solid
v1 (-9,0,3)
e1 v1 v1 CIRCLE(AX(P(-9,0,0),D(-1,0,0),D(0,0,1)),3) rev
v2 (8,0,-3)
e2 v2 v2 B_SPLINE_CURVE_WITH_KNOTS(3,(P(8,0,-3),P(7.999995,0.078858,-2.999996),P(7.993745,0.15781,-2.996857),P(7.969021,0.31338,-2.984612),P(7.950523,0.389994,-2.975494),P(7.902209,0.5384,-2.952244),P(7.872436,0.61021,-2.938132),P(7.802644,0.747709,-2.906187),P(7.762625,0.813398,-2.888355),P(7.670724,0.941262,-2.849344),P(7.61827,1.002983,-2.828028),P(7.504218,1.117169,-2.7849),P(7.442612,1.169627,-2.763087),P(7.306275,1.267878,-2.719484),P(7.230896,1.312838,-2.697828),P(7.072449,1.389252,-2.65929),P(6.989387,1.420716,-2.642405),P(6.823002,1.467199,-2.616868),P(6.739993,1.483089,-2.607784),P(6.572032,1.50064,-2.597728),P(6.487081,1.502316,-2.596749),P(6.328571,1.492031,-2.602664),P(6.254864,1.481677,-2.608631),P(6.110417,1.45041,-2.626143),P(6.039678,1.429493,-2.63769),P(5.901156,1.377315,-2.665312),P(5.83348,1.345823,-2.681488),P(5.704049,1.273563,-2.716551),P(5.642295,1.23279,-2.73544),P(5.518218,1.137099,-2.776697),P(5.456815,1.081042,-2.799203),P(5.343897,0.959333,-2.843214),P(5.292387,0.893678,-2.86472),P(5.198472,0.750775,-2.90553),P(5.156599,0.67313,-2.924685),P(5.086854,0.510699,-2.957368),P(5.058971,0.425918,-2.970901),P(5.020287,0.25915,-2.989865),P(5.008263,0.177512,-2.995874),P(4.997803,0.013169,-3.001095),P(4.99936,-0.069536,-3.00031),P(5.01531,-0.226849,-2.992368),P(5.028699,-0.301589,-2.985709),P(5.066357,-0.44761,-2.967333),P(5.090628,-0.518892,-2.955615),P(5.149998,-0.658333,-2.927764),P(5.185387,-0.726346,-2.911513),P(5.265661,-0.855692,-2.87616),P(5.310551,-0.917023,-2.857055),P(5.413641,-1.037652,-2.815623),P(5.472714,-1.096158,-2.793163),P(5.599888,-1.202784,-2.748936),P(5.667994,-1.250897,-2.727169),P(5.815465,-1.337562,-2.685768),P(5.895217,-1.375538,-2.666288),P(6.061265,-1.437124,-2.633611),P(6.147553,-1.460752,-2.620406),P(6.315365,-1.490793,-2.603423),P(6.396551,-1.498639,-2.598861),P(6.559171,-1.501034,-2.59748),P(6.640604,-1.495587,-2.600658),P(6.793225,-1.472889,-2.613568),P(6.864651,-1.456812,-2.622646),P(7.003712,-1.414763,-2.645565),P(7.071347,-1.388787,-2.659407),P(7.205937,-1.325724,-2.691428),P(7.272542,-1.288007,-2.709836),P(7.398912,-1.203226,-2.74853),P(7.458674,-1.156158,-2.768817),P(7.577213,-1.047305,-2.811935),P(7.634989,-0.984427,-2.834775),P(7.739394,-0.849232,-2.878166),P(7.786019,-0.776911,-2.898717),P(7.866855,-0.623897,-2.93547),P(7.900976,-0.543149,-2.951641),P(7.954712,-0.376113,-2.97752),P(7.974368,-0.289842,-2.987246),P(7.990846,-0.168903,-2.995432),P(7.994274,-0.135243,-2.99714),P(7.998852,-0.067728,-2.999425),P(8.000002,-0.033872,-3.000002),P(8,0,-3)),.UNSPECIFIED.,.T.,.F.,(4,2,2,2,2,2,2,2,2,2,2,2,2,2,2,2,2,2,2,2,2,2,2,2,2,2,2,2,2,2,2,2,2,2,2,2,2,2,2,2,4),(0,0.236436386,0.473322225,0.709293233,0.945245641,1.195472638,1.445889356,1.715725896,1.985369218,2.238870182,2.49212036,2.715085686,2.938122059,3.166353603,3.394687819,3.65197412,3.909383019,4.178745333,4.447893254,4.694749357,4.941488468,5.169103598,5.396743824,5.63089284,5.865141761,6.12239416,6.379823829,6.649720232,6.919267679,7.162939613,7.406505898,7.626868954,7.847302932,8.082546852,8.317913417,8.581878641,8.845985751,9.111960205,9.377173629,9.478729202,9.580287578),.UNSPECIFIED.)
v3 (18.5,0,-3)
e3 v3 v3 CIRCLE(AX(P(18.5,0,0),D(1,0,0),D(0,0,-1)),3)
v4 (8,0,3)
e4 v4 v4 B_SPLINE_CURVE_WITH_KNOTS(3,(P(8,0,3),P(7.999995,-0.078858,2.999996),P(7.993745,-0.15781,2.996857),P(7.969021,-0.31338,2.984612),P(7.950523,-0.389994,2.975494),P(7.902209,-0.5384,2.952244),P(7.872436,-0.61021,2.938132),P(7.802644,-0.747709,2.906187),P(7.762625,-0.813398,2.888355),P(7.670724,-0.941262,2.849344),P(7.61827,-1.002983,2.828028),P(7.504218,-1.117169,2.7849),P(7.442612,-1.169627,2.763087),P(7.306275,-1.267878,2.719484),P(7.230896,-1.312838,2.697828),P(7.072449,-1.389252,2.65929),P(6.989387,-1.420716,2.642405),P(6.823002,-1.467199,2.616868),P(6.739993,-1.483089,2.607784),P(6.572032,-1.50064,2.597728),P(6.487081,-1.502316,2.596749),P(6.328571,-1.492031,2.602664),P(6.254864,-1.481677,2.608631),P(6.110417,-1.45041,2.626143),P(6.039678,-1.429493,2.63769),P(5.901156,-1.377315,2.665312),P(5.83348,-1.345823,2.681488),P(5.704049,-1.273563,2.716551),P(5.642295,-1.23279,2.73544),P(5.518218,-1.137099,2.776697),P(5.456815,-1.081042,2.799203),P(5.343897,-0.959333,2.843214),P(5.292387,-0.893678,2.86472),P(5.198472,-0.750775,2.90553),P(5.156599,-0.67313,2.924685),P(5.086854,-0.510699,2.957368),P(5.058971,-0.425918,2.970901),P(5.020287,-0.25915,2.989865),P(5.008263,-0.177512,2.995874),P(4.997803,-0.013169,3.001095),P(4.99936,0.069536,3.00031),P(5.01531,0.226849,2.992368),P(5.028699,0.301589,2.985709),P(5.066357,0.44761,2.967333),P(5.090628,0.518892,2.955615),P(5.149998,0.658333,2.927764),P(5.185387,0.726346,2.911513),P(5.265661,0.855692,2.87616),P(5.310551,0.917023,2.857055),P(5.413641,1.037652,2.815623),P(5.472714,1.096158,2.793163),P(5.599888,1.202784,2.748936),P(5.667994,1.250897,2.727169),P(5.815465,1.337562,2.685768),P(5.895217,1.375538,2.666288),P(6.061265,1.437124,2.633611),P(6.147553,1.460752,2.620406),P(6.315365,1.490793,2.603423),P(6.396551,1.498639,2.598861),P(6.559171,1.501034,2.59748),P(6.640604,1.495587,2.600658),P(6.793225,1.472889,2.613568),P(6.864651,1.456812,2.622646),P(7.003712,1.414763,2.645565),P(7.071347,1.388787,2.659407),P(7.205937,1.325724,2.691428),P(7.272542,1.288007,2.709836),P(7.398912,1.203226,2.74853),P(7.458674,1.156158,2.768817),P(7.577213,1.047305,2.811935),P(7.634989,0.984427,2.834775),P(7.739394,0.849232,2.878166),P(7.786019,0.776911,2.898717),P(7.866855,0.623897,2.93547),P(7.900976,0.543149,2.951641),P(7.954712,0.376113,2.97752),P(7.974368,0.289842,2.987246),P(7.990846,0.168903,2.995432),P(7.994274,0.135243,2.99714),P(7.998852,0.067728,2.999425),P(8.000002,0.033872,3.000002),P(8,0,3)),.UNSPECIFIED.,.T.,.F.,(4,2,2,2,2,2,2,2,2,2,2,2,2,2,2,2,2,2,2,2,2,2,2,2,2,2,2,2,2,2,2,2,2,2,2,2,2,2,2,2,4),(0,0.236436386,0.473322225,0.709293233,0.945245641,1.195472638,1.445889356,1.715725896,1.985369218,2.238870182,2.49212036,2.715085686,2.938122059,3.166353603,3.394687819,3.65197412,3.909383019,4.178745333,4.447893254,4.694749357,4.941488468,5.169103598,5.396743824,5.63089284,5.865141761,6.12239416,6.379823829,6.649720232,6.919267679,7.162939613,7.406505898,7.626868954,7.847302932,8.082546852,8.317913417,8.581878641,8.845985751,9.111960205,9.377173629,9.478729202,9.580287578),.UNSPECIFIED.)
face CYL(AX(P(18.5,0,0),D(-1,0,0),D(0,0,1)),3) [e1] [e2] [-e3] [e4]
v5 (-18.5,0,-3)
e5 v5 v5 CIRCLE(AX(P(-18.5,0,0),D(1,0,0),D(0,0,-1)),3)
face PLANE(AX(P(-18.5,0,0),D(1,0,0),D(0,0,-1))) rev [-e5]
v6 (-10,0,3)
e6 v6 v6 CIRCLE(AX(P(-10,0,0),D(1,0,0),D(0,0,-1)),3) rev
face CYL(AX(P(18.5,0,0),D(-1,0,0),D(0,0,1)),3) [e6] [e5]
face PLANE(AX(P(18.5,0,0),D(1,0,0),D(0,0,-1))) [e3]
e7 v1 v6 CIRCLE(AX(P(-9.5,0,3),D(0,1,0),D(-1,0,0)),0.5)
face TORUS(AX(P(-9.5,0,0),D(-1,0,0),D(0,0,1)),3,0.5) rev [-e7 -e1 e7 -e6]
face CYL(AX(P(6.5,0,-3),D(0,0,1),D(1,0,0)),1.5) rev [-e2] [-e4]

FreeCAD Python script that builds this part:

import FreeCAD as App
import Part
import Sketcher

doc = App.newDocument("Part")
params = doc.addObject("Spreadsheet::Sheet", "Params")
for row, (alias, value) in enumerate([
    ("sketch1_diameter", "6 mm"),
    ("pad1_length", "37 mm"),
    ("sketch2_diameter", "3 mm"),
    ("sketch3_diameter", "1 mm"),
    ("sketch4_diameter", "6 mm"),
], start=1):
    params.set(f"A{row}", alias)
    params.set(f"B{row}", "=" + value)
    params.setAlias(f"B{row}", alias)

body = doc.addObject("PartDesign::Body", "Body")

# Sketch on YZ plane
sketch1 = doc.addObject("Sketcher::SketchObject", "Sketch")
body.addObject(sketch1)
sketch1.AttachmentSupport = (doc.YZ_Plane, [""])
sketch1.MapMode = "FlatFace"
sketch1.addGeometry(Part.Circle(App.Vector(0, 0, 0), App.Vector(0, 0, 1), 3), False)
sketch1.addConstraint(Sketcher.Constraint("Coincident", 0, 3, -1, 1))
sketch1.addConstraint(Sketcher.Constraint("Diameter", 0, 6.0))
sketch1.setExpression("Constraints[1]", "Params.sketch1_diameter")
pad1 = doc.addObject("PartDesign::Pad", "Pad")
body.addObject(pad1)
pad1.Profile = sketch1
pad1.setExpression("Length", "Params.pad1_length")
pad1.Midplane = True

# Sketch on XY plane
sketch2 = doc.addObject("Sketcher::SketchObject", "Sketch001")
body.addObject(sketch2)
sketch2.AttachmentSupport = (doc.XY_Plane, [""])
sketch2.MapMode = "FlatFace"
sketch2.addGeometry(Part.Circle(App.Vector(6.5, 0, 0), App.Vector(0, 0, 1), 1.5), False)
sketch2.addConstraint(Sketcher.Constraint("PointOnObject", 0, 3, -1))
sketch2.addConstraint(Sketcher.Constraint("Diameter", 0, 3.0))
sketch2.addConstraint(Sketcher.Constraint("DistanceX", -1, 1, 0, 3, 6.5))
sketch2.setExpression("Constraints[1]", "Params.sketch2_diameter")
pocket1 = doc.addObject("PartDesign::Pocket", "Pocket")
body.addObject(pocket1)
pocket1.Profile = sketch2
pocket1.Type = "ThroughAll"
pocket1.Midplane = True

# Sketch on XY plane
sketch3 = doc.addObject("Sketcher::SketchObject", "Sketch002")
body.addObject(sketch3)
sketch3.AttachmentSupport = (doc.XY_Plane, [""])
sketch3.MapMode = "FlatFace"
sketch3.addGeometry(Part.Circle(App.Vector(-9.5, -3, 0), App.Vector(0, 0, 1), 0.5), False)
sketch3.addConstraint(Sketcher.Constraint("Diameter", 0, 1.0))
sketch3.addConstraint(Sketcher.Constraint("DistanceY", 0, 3, -1, 1, 3.0))
sketch3.addConstraint(Sketcher.Constraint("DistanceX", 0, 3, -1, 1, 9.5))
sketch3.setExpression("Constraints[0]", "Params.sketch3_diameter")

# Sketch on YZ plane
sketch4 = doc.addObject("Sketcher::SketchObject", "Sketch003")
body.addObject(sketch4)
sketch4.AttachmentSupport = (doc.YZ_Plane, [""])
sketch4.MapMode = "FlatFace"
sketch4.AttachmentOffset = App.Placement(App.Vector(0, 0, -9.5), App.Rotation())
sketch4.addGeometry(Part.Circle(App.Vector(0, 0, 0), App.Vector(0, 0, 1), 3), False)
sketch4.addConstraint(Sketcher.Constraint("Coincident", 0, 3, -1, 1))
sketch4.addConstraint(Sketcher.Constraint("Diameter", 0, 6.0))
sketch4.setExpression("Constraints[1]", "Params.sketch4_diameter")
doc.recompute()

subtractivepipe = doc.addObject("PartDesign::SubtractivePipe", "SubtractivePipe")
body.addObject(subtractivepipe)
subtractivepipe.Profile = sketch3
subtractivepipe.Spine = (sketch4, ["Edge1"])

doc.recompute()
